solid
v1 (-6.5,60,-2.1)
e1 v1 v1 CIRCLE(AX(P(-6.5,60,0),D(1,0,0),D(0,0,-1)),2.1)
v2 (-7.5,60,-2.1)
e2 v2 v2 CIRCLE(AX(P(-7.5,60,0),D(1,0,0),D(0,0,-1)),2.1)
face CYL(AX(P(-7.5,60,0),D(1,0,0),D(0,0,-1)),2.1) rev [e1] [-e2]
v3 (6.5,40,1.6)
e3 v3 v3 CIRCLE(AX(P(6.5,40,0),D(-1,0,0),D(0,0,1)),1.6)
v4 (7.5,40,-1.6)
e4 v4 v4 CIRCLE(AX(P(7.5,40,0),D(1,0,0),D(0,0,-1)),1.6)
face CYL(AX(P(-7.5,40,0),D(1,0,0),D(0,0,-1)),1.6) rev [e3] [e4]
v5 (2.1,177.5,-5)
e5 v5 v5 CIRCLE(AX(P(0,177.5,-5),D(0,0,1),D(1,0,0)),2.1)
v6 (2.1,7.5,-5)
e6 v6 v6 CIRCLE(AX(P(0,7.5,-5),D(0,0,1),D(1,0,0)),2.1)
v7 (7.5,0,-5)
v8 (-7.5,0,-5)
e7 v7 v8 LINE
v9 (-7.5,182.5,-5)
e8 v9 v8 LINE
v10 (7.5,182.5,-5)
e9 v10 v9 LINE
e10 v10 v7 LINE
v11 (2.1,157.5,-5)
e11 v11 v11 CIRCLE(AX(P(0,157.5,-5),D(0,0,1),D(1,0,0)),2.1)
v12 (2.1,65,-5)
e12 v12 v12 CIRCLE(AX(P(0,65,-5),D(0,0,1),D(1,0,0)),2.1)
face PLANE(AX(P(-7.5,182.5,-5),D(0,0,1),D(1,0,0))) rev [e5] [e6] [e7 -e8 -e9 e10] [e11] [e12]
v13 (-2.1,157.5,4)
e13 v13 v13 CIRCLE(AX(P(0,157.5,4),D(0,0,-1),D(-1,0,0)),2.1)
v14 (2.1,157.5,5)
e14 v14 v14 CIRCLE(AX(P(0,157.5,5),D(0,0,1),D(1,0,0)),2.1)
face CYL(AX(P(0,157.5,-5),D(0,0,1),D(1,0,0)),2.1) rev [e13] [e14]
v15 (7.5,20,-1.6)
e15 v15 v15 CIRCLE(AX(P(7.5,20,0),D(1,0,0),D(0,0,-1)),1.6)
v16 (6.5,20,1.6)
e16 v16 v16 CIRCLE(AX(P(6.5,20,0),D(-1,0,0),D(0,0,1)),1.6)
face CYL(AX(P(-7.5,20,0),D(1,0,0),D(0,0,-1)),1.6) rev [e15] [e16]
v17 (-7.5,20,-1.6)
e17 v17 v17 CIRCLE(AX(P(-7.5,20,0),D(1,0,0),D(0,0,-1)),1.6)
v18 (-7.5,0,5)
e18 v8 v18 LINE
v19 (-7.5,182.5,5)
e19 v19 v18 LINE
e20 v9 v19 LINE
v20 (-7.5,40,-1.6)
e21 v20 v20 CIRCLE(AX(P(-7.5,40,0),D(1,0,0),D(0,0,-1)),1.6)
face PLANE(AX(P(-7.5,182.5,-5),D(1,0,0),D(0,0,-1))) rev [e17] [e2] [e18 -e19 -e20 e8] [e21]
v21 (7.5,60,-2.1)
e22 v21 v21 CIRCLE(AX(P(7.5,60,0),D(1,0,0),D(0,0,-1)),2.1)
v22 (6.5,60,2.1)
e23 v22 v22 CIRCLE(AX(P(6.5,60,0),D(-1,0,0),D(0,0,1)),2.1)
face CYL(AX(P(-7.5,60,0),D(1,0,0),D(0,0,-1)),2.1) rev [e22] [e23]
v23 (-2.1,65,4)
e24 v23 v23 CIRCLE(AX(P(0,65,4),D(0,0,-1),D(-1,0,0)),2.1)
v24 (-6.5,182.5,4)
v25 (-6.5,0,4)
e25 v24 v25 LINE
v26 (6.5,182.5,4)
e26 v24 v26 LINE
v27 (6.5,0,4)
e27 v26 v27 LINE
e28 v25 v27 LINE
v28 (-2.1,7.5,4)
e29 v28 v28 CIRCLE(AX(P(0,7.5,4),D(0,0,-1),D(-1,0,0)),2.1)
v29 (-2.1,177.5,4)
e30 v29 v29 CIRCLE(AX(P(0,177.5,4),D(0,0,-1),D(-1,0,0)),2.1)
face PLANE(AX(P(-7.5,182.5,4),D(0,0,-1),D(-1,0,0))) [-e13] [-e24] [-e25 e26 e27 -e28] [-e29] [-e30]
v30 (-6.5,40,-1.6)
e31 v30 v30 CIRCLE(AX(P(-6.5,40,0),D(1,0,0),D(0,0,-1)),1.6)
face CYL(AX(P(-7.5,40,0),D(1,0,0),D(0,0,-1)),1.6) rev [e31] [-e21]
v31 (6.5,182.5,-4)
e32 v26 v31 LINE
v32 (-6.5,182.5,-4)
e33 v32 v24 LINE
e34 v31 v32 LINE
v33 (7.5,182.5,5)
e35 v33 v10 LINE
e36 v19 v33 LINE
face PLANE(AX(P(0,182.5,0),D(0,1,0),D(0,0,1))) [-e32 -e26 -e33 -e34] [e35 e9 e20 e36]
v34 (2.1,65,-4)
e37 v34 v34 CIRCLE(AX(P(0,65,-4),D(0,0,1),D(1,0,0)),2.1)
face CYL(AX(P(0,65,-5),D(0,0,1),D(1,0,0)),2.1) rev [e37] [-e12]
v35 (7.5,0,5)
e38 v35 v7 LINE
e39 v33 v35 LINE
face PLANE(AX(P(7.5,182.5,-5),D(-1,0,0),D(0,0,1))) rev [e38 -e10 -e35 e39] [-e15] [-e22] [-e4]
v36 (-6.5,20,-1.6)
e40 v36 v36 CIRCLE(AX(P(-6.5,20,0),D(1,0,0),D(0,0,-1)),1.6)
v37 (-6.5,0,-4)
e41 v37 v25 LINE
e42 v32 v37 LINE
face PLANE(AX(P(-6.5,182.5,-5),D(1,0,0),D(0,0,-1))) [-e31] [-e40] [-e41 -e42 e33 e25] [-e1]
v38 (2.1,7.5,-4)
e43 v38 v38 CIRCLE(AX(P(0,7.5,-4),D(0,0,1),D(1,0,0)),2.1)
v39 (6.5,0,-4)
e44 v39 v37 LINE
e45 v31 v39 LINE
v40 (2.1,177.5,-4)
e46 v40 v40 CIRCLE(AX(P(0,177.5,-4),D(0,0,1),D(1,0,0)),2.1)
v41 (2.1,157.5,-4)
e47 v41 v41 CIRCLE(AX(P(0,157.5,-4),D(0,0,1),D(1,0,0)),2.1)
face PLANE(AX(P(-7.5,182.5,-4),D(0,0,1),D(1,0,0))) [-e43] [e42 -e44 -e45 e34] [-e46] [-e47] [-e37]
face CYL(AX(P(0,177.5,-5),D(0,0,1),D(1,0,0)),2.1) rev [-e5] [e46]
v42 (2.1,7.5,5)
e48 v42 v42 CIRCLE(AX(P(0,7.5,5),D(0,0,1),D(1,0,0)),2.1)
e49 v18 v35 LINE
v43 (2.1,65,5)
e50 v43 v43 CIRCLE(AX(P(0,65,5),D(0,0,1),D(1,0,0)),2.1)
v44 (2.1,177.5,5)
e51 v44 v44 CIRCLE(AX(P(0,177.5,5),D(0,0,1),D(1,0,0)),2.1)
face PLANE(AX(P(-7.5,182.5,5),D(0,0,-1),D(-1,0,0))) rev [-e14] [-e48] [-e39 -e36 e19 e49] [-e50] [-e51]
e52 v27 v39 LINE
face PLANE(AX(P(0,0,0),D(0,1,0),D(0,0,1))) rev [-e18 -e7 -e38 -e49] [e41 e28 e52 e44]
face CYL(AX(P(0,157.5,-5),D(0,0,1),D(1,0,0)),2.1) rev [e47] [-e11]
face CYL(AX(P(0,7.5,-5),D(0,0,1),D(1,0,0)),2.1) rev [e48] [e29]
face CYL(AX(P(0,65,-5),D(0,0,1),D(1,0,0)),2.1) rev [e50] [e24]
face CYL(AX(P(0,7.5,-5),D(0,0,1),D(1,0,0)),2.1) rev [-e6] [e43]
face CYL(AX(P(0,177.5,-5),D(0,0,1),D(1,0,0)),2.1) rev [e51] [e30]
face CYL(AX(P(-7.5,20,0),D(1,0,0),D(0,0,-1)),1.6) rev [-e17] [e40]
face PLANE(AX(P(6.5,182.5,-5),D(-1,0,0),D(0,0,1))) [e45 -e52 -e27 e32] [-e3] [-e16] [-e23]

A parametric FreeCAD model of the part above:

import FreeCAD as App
import Part
import Sketcher
from FreeCAD import Vector
Q = App.Units.Quantity

doc = App.newDocument("Part")
params = doc.addObject("Spreadsheet::Sheet", "Params")
for row, (alias, value) in enumerate([
    ("sketch1_width", "15 mm"),
    ("sketch1_width2", "13 mm"),
    ("sketch1_height", "10 mm"),
    ("sketch1_height2", "8 mm"),
    ("pad1_length", "182.5 mm"),
    ("sketch2_diameter", "4.2 mm"),
    ("sketch3_diameter", "3.2 mm"),
    ("sketch3_diameter2", "4.2 mm"),
], start=1):
    params.set(f"A{row}", alias)
    params.set(f"B{row}", "=" + value)
    params.setAlias(f"B{row}", alias)

body = doc.addObject("PartDesign::Body", "Body")

sketch1 = body.newObject("Sketcher::SketchObject", "Sketch")
sketch1.AttachmentSupport = (doc.getObject("XZ_Plane"), [""])
sketch1.MapMode = "FlatFace"
sketch1.addGeometry([
    Part.LineSegment(Vector(-8, -5, 0), Vector(-8, 5, 0)),
    Part.LineSegment(Vector(-8, 5, 0), Vector(8, 5, 0)),
    Part.LineSegment(Vector(8, 5, 0), Vector(8, -5, 0)),
    Part.LineSegment(Vector(8, -5, 0), Vector(-8, -5, 0)),
    Part.LineSegment(Vector(6, 4, 0), Vector(-6, 4, 0)),
    Part.LineSegment(Vector(-6, 4, 0), Vector(-6, -4, 0)),
    Part.LineSegment(Vector(-6, -4, 0), Vector(6, -4, 0)),
    Part.LineSegment(Vector(6, -4, 0), Vector(6, 4, 0)),
], False)
sketch1.addConstraint([
    Sketcher.Constraint("Coincident", 0, 2, 1, 1),
    Sketcher.Constraint("Coincident", 1, 2, 2, 1),
    Sketcher.Constraint("Coincident", 2, 2, 3, 1),
    Sketcher.Constraint("Coincident", 3, 2, 0, 1),
    Sketcher.Constraint("Coincident", 4, 2, 5, 1),
    Sketcher.Constraint("Coincident", 5, 2, 6, 1),
    Sketcher.Constraint("Coincident", 6, 2, 7, 1),
    Sketcher.Constraint("Coincident", 7, 2, 4, 1),
    Sketcher.Constraint("Vertical", 0),
    Sketcher.Constraint("Horizontal", 1),
    Sketcher.Constraint("Vertical", 2),
    Sketcher.Constraint("Horizontal", 3),
    Sketcher.Constraint("Horizontal", 4),
    Sketcher.Constraint("Vertical", 5),
    Sketcher.Constraint("Horizontal", 6),
    Sketcher.Constraint("Vertical", 7),
    Sketcher.Constraint("Symmetric", 0, 2, 2, 2, -1, 1),
    Sketcher.Constraint("Symmetric", 4, 2, 6, 2, -1, 1),
    Sketcher.Constraint("DistanceX", 1, 1, 1, 2, Q("15 mm")),
    Sketcher.Constraint("DistanceX", 4, 2, 4, 1, Q("13 mm")),
    Sketcher.Constraint("DistanceY", 0, 1, 0, 2, Q("10 mm")),
    Sketcher.Constraint("DistanceY", 5, 2, 5, 1, Q("8 mm")),
])
sketch1.setExpression("Constraints[18]", "Params.sketch1_width")
sketch1.setExpression("Constraints[19]", "Params.sketch1_width2")
sketch1.setExpression("Constraints[20]", "Params.sketch1_height")
sketch1.setExpression("Constraints[21]", "Params.sketch1_height2")
pad1 = body.newObject("PartDesign::Pad", "Pad")
pad1.Profile = sketch1
pad1.setExpression("Length", "Params.pad1_length")
pad1.Reversed = True

sketch2 = body.newObject("Sketcher::SketchObject", "Sketch001")
sketch2.AttachmentSupport = (doc.getObject("XY_Plane"), [""])
sketch2.MapMode = "FlatFace"
sketch2.AttachmentOffset = App.Placement(Vector(0, 0, 5), App.Rotation())
sketch2.addGeometry([
    Part.Circle(Vector(0, 7.5, 0), Vector(0, 0, 1), 2.1),
    Part.Circle(Vector(0, 65, 0), Vector(0, 0, 1), 2.1),
    Part.Circle(Vector(0, 157.5, 0), Vector(0, 0, 1), 2.1),
    Part.Circle(Vector(0, 177.5, 0), Vector(0, 0, 1), 2.1),
], False)
sketch2.addConstraint([
    Sketcher.Constraint("Equal", 0, 1),
    Sketcher.Constraint("Equal", 1, 2),
    Sketcher.Constraint("Equal", 2, 3),
    Sketcher.Constraint("PointOnObject", 0, 3, -2),
    Sketcher.Constraint("PointOnObject", 1, 3, -2),
    Sketcher.Constraint("PointOnObject", 2, 3, -2),
    Sketcher.Constraint("PointOnObject", 3, 3, -2),
    Sketcher.Constraint("Diameter", 0, Q("4.2 mm")),
    Sketcher.Constraint("DistanceY", -1, 1, 1, 3, Q("65 mm")),
    Sketcher.Constraint("DistanceY", 0, 3, 2, 3, Q("150 mm")),
    Sketcher.Constraint("DistanceY", 2, 3, 3, 3, Q("20 mm")),
    Sketcher.Constraint("DistanceY", -1, 1, 0, 3, Q("7.5 mm")),
])
sketch2.setExpression("Constraints[7]", "Params.sketch2_diameter")
pocket1 = body.newObject("PartDesign::Pocket", "Pocket")
pocket1.Profile = sketch2
pocket1.Type = "ThroughAll"

sketch3 = body.newObject("Sketcher::SketchObject", "Sketch002")
sketch3.AttachmentSupport = (doc.getObject("YZ_Plane"), [""])
sketch3.MapMode = "FlatFace"
sketch3.AttachmentOffset = App.Placement(Vector(0, 0, 7.5), App.Rotation())
sketch3.addGeometry([
    Part.Circle(Vector(20, 0, 0), Vector(0, 0, 1), 1.6),
    Part.Circle(Vector(60, 0, 0), Vector(0, 0, 1), 2.1),
    Part.Circle(Vector(40, 0, 0), Vector(0, 0, 1), 1.6),
], False)
sketch3.addConstraint([
    Sketcher.Constraint("Equal", 0, 2),
    Sketcher.Constraint("PointOnObject", 0, 3, -1),
    Sketcher.Constraint("PointOnObject", 1, 3, -1),
    Sketcher.Constraint("PointOnObject", 2, 3, -1),
    Sketcher.Constraint("Diameter", 0, Q("3.2 mm")),
    Sketcher.Constraint("Diameter", 1, Q("4.2 mm")),
    Sketcher.Constraint("DistanceX", -1, 1, 0, 3, Q("20 mm")),
    Sketcher.Constraint("DistanceX", -1, 1, 1, 3, Q("60 mm")),
    Sketcher.Constraint("DistanceX", -1, 1, 2, 3, Q("40 mm")),
])
sketch3.setExpression("Constraints[4]", "Params.sketch3_diameter")
sketch3.setExpression("Constraints[5]", "Params.sketch3_diameter2")
pocket2 = body.newObject("PartDesign::Pocket", "Pocket001")
pocket2.Profile = sketch3
pocket2.Type = "ThroughAll"

doc.recompute()
